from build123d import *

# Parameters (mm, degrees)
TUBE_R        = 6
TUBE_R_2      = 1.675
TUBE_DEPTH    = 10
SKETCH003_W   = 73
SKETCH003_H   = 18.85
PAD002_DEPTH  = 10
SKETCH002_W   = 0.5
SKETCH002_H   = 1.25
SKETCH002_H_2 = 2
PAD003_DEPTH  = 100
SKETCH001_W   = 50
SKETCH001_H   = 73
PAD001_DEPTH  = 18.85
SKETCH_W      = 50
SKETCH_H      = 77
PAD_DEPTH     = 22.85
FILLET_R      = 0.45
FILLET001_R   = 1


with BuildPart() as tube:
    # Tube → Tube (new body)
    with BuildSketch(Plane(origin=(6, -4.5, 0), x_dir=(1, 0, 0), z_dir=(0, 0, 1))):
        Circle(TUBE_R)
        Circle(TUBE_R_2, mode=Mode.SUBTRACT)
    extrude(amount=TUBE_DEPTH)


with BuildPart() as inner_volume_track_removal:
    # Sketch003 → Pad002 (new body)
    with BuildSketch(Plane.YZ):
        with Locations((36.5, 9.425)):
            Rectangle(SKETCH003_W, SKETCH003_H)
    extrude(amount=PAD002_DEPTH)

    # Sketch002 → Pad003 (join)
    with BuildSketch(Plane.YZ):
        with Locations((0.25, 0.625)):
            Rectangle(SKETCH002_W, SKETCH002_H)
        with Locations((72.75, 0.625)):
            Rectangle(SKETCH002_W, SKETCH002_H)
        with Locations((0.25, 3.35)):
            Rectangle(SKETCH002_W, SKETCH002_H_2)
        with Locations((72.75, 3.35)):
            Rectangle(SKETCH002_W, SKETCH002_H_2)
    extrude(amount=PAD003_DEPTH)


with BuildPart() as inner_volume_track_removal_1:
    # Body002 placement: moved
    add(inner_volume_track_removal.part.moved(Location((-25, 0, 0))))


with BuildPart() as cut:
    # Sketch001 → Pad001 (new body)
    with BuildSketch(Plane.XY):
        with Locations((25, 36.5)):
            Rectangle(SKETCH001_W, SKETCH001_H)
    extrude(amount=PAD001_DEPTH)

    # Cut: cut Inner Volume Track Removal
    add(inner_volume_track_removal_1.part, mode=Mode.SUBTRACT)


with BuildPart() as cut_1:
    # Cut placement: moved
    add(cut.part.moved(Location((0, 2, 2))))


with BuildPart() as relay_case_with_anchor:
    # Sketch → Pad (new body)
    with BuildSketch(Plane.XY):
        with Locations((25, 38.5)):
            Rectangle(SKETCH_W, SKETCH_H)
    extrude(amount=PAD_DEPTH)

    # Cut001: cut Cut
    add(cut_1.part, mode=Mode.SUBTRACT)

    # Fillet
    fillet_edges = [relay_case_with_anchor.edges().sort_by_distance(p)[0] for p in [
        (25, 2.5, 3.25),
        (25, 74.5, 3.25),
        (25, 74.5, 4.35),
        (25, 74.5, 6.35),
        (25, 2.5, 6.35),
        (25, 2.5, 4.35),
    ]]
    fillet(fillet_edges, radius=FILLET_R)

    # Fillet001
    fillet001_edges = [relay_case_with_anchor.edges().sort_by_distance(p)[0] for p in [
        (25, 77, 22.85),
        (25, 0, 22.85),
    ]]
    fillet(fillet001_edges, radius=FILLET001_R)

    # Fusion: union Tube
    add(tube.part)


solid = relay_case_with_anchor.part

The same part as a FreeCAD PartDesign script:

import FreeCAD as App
import Part
import Sketcher


def edges_at(feature, points):
    """Names of the edges that pass closest to the given points."""
    edges = feature.Shape.Edges
    near = lambda p: min(range(len(edges)), key=lambda i: edges[i].distToShape(Part.Vertex(*p))[0])
    return sorted({f"Edge{near(p) + 1}" for p in points})

doc = App.newDocument("Part")
body = doc.addObject("PartDesign::Body", "Body")

sketch1 = body.newObject("Sketcher::SketchObject", "Sketch")
sketch1.AttachmentSupport = (doc.getObject("XY_Plane"), [""])
sketch1.MapMode = "FlatFace"
sketch1.addGeometry(Part.Circle(App.Vector(6, -4.5, 0), App.Vector(0, 0, 1), 6), False)
sketch1.addGeometry(Part.Circle(App.Vector(6, -4.5, 0), App.Vector(0, 0, 1), 1.675), False)
sketch1.addConstraint(Sketcher.Constraint("Coincident", 1, 3, 0, 3))
sketch1.addConstraint(Sketcher.Constraint("Diameter", 0, 12.0))
sketch1.addConstraint(Sketcher.Constraint("Diameter", 1, 3.35))
sketch1.addConstraint(Sketcher.Constraint("DistanceX", -1, 1, 0, 3, 6.0))
sketch1.addConstraint(Sketcher.Constraint("DistanceY", 0, 3, -1, 1, 4.5))
pad1 = body.newObject("PartDesign::Pad", "Pad")
pad1.Profile = sketch1
pad1.Length = 10
body2 = doc.addObject("PartDesign::Body", "Body001")

sketch2 = body2.newObject("Sketcher::SketchObject", "Sketch001")
sketch2.AttachmentSupport = (doc.getObject("YZ_Plane001"), [""])
sketch2.MapMode = "FlatFace"
sketch2.addGeometry(Part.LineSegment(App.Vector(0, 18.85, 0), App.Vector(0, 0, 0)), False)
sketch2.addGeometry(Part.LineSegment(App.Vector(0, 0, 0), App.Vector(73, 0, 0)), False)
sketch2.addGeometry(Part.LineSegment(App.Vector(73, 0, 0), App.Vector(73, 18.85, 0)), False)
sketch2.addGeometry(Part.LineSegment(App.Vector(73, 18.85, 0), App.Vector(0, 18.85, 0)), False)
sketch2.addConstraint(Sketcher.Constraint("Coincident", 0, 2, 1, 1))
sketch2.addConstraint(Sketcher.Constraint("Coincident", 1, 2, 2, 1))
sketch2.addConstraint(Sketcher.Constraint("Coincident", 2, 2, 3, 1))
sketch2.addConstraint(Sketcher.Constraint("Coincident", 3, 2, 0, 1))
sketch2.addConstraint(Sketcher.Constraint("Vertical", 0))
sketch2.addConstraint(Sketcher.Constraint("Horizontal", 1))
sketch2.addConstraint(Sketcher.Constraint("Vertical", 2))
sketch2.addConstraint(Sketcher.Constraint("Horizontal", 3))
sketch2.addConstraint(Sketcher.Constraint("Coincident", 0, 2, -1, 1))
sketch2.addConstraint(Sketcher.Constraint("DistanceX", 1, 1, 1, 2, 73.0))
sketch2.addConstraint(Sketcher.Constraint("DistanceY", 0, 2, 0, 1, 18.85))
pad2 = body2.newObject("PartDesign::Pad", "Pad001")
pad2.Profile = sketch2
pad2.Length = 10

sketch3 = body2.newObject("Sketcher::SketchObject", "Sketch002")
sketch3.AttachmentSupport = (doc.getObject("YZ_Plane001"), [""])
sketch3.MapMode = "FlatFace"
sketch3.addGeometry(Part.LineSegment(App.Vector(0, 1.25, 0), App.Vector(0, 0, 0)), False)
sketch3.addGeometry(Part.LineSegment(App.Vector(0, 0, 0), App.Vector(0.5, 0, 0)), False)
sketch3.addGeometry(Part.LineSegment(App.Vector(0.5, 0, 0), App.Vector(0.5, 1.25, 0)), False)
sketch3.addGeometry(Part.LineSegment(App.Vector(0.5, 1.25, 0), App.Vector(0, 1.25, 0)), False)
sketch3.addGeometry(Part.LineSegment(App.Vector(72.5, 1.25, 0), App.Vector(72.5, 0, 0)), False)
sketch3.addGeometry(Part.LineSegment(App.Vector(72.5, 0, 0), App.Vector(73, 0, 0)), False)
sketch3.addGeometry(Part.LineSegment(App.Vector(73, 0, 0), App.Vector(73, 1.25, 0)), False)
sketch3.addGeometry(Part.LineSegment(App.Vector(73, 1.25, 0), App.Vector(72.5, 1.25, 0)), False)
sketch3.addGeometry(Part.LineSegment(App.Vector(0, 4.35, 0), App.Vector(0, 2.35, 0)), False)
sketch3.addGeometry(Part.LineSegment(App.Vector(0, 2.35, 0), App.Vector(0.5, 2.35, 0)), False)
sketch3.addGeometry(Part.LineSegment(App.Vector(0.5, 2.35, 0), App.Vector(0.5, 4.35, 0)), False)
sketch3.addGeometry(Part.LineSegment(App.Vector(0.5, 4.35, 0), App.Vector(0, 4.35, 0)), False)
sketch3.addGeometry(Part.LineSegment(App.Vector(72.5, 4.35, 0), App.Vector(72.5, 2.35, 0)), False)
sketch3.addGeometry(Part.LineSegment(App.Vector(72.5, 2.35, 0), App.Vector(73, 2.35, 0)), False)
sketch3.addGeometry(Part.LineSegment(App.Vector(73, 2.35, 0), App.Vector(73, 4.35, 0)), False)
sketch3.addGeometry(Part.LineSegment(App.Vector(73, 4.35, 0), App.Vector(72.5, 4.35, 0)), False)
sketch3.addConstraint(Sketcher.Constraint("Coincident", 0, 2, 1, 1))
sketch3.addConstraint(Sketcher.Constraint("Coincident", 1, 2, 2, 1))
sketch3.addConstraint(Sketcher.Constraint("Coincident", 2, 2, 3, 1))
sketch3.addConstraint(Sketcher.Constraint("Coincident", 3, 2, 0, 1))
sketch3.addConstraint(Sketcher.Constraint("Coincident", 4, 2, 5, 1))
sketch3.addConstraint(Sketcher.Constraint("Coincident", 5, 2, 6, 1))
sketch3.addConstraint(Sketcher.Constraint("Coincident", 6, 2, 7, 1))
sketch3.addConstraint(Sketcher.Constraint("Coincident", 7, 2, 4, 1))
sketch3.addConstraint(Sketcher.Constraint("Coincident", 8, 2, 9, 1))
sketch3.addConstraint(Sketcher.Constraint("Coincident", 9, 2, 10, 1))
sketch3.addConstraint(Sketcher.Constraint("Coincident", 10, 2, 11, 1))
sketch3.addConstraint(Sketcher.Constraint("Coincident", 11, 2, 8, 1))
sketch3.addConstraint(Sketcher.Constraint("Coincident", 12, 2, 13, 1))
sketch3.addConstraint(Sketcher.Constraint("Coincident", 13, 2, 14, 1))
sketch3.addConstraint(Sketcher.Constraint("Coincident", 14, 2, 15, 1))
sketch3.addConstraint(Sketcher.Constraint("Coincident", 15, 2, 12, 1))
sketch3.addConstraint(Sketcher.Constraint("Vertical", 0))
sketch3.addConstraint(Sketcher.Constraint("Horizontal", 1))
sketch3.addConstraint(Sketcher.Constraint("Vertical", 2))
sketch3.addConstraint(Sketcher.Constraint("Horizontal", 3))
sketch3.addConstraint(Sketcher.Constraint("Vertical", 4))
sketch3.addConstraint(Sketcher.Constraint("Horizontal", 5))
sketch3.addConstraint(Sketcher.Constraint("Vertical", 6))
sketch3.addConstraint(Sketcher.Constraint("Horizontal", 7))
sketch3.addConstraint(Sketcher.Constraint("Vertical", 8))
sketch3.addConstraint(Sketcher.Constraint("Horizontal", 9))
sketch3.addConstraint(Sketcher.Constraint("Vertical", 10))
sketch3.addConstraint(Sketcher.Constraint("Horizontal", 11))
sketch3.addConstraint(Sketcher.Constraint("Vertical", 12))
sketch3.addConstraint(Sketcher.Constraint("Horizontal", 13))
sketch3.addConstraint(Sketcher.Constraint("Vertical", 14))
sketch3.addConstraint(Sketcher.Constraint("Horizontal", 15))
sketch3.addConstraint(Sketcher.Constraint("Coincident", 0, 2, -1, 1))
sketch3.addConstraint(Sketcher.Constraint("PointOnObject", 4, 2, -1))
sketch3.addConstraint(Sketcher.Constraint("PointOnObject", 8, 2, -2))
sketch3.addConstraint(Sketcher.Constraint("Horizontal", 3, 2, 6, 2))
sketch3.addConstraint(Sketcher.Constraint("Horizontal", 9, 2, 12, 2))
sketch3.addConstraint(Sketcher.Constraint("Horizontal", 11, 2, 14, 2))
sketch3.addConstraint(Sketcher.Constraint("Vertical", 2, 2, 9, 2))
sketch3.addConstraint(Sketcher.Constraint("Vertical", 7, 2, 12, 2))
sketch3.addConstraint(Sketcher.Constraint("Vertical", 6, 2, 13, 2))
sketch3.addConstraint(Sketcher.Constraint("Equal", 3, 5))
sketch3.addConstraint(Sketcher.Constraint("DistanceY", 8, 2, 8, 1, 2.0))
sketch3.addConstraint(Sketcher.Constraint("DistanceX", 1, 1, 1, 2, 0.5))
sketch3.addConstraint(Sketcher.Constraint("DistanceX", -1, 1, 5, 2, 73.0))
sketch3.addConstraint(Sketcher.Constraint("DistanceY", 0, 2, 0, 1, 1.25))
sketch3.addConstraint(Sketcher.Constraint("DistanceY", 3, 2, 8, 2, 1.1))
pad3 = body2.newObject("PartDesign::Pad", "Pad002")
pad3.Profile = sketch3
pad3.Length = 100
body3 = doc.addObject("PartDesign::Body", "Body002")
doc.recompute()

body2.Placement = App.Placement(App.Vector(-25, 0, 0), App.Rotation(App.Vector(0, 0, 1), 0))
boolean = body3.newObject("PartDesign::Boolean", "Boolean")
boolean.Type = "Fuse"
boolean.addObjects([body2])
body4 = doc.addObject("PartDesign::Body", "Body003")

sketch4 = body4.newObject("Sketcher::SketchObject", "Sketch003")
sketch4.AttachmentSupport = (doc.getObject("XY_Plane003"), [""])
sketch4.MapMode = "FlatFace"
sketch4.addGeometry(Part.LineSegment(App.Vector(0, 73, 0), App.Vector(0, 0, 0)), False)
sketch4.addGeometry(Part.LineSegment(App.Vector(0, 0, 0), App.Vector(50, 0, 0)), False)
sketch4.addGeometry(Part.LineSegment(App.Vector(50, 0, 0), App.Vector(50, 73, 0)), False)
sketch4.addGeometry(Part.LineSegment(App.Vector(50, 73, 0), App.Vector(0, 73, 0)), False)
sketch4.addConstraint(Sketcher.Constraint("Coincident", 0, 2, 1, 1))
sketch4.addConstraint(Sketcher.Constraint("Coincident", 1, 2, 2, 1))
sketch4.addConstraint(Sketcher.Constraint("Coincident", 2, 2, 3, 1))
sketch4.addConstraint(Sketcher.Constraint("Coincident", 3, 2, 0, 1))
sketch4.addConstraint(Sketcher.Constraint("Vertical", 0))
sketch4.addConstraint(Sketcher.Constraint("Horizontal", 1))
sketch4.addConstraint(Sketcher.Constraint("Vertical", 2))
sketch4.addConstraint(Sketcher.Constraint("Horizontal", 3))
sketch4.addConstraint(Sketcher.Constraint("Coincident", 0, 2, -1, 1))
sketch4.addConstraint(Sketcher.Constraint("DistanceX", 1, 1, 1, 2, 50.0))
sketch4.addConstraint(Sketcher.Constraint("DistanceY", 0, 2, 0, 1, 73.0))
pad4 = body4.newObject("PartDesign::Pad", "Pad003")
pad4.Profile = sketch4
pad4.Length = 18.85
doc.recompute()

boolean2 = body4.newObject("PartDesign::Boolean", "Boolean001")
boolean2.Type = "Cut"
boolean2.addObjects([body3])
body5 = doc.addObject("PartDesign::Body", "Body004")
doc.recompute()

body4.Placement = App.Placement(App.Vector(0, 2, 2), App.Rotation(App.Vector(0, 0, 1), 0))
boolean3 = body5.newObject("PartDesign::Boolean", "Boolean002")
boolean3.Type = "Fuse"
boolean3.addObjects([body4])
body6 = doc.addObject("PartDesign::Body", "Body005")

sketch5 = body6.newObject("Sketcher::SketchObject", "Sketch004")
sketch5.AttachmentSupport = (doc.getObject("XY_Plane005"), [""])
sketch5.MapMode = "FlatFace"
sketch5.addGeometry(Part.LineSegment(App.Vector(0, 77, 0), App.Vector(0, 0, 0)), False)
sketch5.addGeometry(Part.LineSegment(App.Vector(0, 0, 0), App.Vector(50, 0, 0)), False)
sketch5.addGeometry(Part.LineSegment(App.Vector(50, 0, 0), App.Vector(50, 77, 0)), False)
sketch5.addGeometry(Part.LineSegment(App.Vector(50, 77, 0), App.Vector(0, 77, 0)), False)
sketch5.addConstraint(Sketcher.Constraint("Coincident", 0, 2, 1, 1))
sketch5.addConstraint(Sketcher.Constraint("Coincident", 1, 2, 2, 1))
sketch5.addConstraint(Sketcher.Constraint("Coincident", 2, 2, 3, 1))
sketch5.addConstraint(Sketcher.Constraint("Coincident", 3, 2, 0, 1))
sketch5.addConstraint(Sketcher.Constraint("Vertical", 0))
sketch5.addConstraint(Sketcher.Constraint("Horizontal", 1))
sketch5.addConstraint(Sketcher.Constraint("Vertical", 2))
sketch5.addConstraint(Sketcher.Constraint("Horizontal", 3))
sketch5.addConstraint(Sketcher.Constraint("Coincident", 0, 2, -1, 1))
sketch5.addConstraint(Sketcher.Constraint("DistanceX", 1, 1, 1, 2, 50.0))
sketch5.addConstraint(Sketcher.Constraint("DistanceY", 0, 2, 0, 1, 77.0))
pad5 = body6.newObject("PartDesign::Pad", "Pad004")
pad5.Profile = sketch5
pad5.Length = 22.85
doc.recompute()

boolean4 = body6.newObject("PartDesign::Boolean", "Boolean003")
boolean4.Type = "Cut"
boolean4.addObjects([body5])
doc.recompute()

fillet = body6.newObject("PartDesign::Fillet", "Fillet")
fillet.Base = (boolean4, edges_at(boolean4, [
    (25, 2.5, 3.25),
    (25, 74.5, 3.25),
    (25, 74.5, 4.35),
    (25, 74.5, 6.35),
    (25, 2.5, 6.35),
    (25, 2.5, 4.35),
]))
fillet.Radius = 0.45
doc.recompute()

fillet2 = body6.newObject("PartDesign::Fillet", "Fillet001")
fillet2.Base = (fillet, edges_at(fillet, [(25, 77, 22.85), (25, 0, 22.85)]))
fillet2.Radius = 1
doc.recompute()

boolean5 = body6.newObject("PartDesign::Boolean", "Boolean004")
boolean5.Type = "Fuse"
boolean5.addObjects([body])

doc.recompute()
